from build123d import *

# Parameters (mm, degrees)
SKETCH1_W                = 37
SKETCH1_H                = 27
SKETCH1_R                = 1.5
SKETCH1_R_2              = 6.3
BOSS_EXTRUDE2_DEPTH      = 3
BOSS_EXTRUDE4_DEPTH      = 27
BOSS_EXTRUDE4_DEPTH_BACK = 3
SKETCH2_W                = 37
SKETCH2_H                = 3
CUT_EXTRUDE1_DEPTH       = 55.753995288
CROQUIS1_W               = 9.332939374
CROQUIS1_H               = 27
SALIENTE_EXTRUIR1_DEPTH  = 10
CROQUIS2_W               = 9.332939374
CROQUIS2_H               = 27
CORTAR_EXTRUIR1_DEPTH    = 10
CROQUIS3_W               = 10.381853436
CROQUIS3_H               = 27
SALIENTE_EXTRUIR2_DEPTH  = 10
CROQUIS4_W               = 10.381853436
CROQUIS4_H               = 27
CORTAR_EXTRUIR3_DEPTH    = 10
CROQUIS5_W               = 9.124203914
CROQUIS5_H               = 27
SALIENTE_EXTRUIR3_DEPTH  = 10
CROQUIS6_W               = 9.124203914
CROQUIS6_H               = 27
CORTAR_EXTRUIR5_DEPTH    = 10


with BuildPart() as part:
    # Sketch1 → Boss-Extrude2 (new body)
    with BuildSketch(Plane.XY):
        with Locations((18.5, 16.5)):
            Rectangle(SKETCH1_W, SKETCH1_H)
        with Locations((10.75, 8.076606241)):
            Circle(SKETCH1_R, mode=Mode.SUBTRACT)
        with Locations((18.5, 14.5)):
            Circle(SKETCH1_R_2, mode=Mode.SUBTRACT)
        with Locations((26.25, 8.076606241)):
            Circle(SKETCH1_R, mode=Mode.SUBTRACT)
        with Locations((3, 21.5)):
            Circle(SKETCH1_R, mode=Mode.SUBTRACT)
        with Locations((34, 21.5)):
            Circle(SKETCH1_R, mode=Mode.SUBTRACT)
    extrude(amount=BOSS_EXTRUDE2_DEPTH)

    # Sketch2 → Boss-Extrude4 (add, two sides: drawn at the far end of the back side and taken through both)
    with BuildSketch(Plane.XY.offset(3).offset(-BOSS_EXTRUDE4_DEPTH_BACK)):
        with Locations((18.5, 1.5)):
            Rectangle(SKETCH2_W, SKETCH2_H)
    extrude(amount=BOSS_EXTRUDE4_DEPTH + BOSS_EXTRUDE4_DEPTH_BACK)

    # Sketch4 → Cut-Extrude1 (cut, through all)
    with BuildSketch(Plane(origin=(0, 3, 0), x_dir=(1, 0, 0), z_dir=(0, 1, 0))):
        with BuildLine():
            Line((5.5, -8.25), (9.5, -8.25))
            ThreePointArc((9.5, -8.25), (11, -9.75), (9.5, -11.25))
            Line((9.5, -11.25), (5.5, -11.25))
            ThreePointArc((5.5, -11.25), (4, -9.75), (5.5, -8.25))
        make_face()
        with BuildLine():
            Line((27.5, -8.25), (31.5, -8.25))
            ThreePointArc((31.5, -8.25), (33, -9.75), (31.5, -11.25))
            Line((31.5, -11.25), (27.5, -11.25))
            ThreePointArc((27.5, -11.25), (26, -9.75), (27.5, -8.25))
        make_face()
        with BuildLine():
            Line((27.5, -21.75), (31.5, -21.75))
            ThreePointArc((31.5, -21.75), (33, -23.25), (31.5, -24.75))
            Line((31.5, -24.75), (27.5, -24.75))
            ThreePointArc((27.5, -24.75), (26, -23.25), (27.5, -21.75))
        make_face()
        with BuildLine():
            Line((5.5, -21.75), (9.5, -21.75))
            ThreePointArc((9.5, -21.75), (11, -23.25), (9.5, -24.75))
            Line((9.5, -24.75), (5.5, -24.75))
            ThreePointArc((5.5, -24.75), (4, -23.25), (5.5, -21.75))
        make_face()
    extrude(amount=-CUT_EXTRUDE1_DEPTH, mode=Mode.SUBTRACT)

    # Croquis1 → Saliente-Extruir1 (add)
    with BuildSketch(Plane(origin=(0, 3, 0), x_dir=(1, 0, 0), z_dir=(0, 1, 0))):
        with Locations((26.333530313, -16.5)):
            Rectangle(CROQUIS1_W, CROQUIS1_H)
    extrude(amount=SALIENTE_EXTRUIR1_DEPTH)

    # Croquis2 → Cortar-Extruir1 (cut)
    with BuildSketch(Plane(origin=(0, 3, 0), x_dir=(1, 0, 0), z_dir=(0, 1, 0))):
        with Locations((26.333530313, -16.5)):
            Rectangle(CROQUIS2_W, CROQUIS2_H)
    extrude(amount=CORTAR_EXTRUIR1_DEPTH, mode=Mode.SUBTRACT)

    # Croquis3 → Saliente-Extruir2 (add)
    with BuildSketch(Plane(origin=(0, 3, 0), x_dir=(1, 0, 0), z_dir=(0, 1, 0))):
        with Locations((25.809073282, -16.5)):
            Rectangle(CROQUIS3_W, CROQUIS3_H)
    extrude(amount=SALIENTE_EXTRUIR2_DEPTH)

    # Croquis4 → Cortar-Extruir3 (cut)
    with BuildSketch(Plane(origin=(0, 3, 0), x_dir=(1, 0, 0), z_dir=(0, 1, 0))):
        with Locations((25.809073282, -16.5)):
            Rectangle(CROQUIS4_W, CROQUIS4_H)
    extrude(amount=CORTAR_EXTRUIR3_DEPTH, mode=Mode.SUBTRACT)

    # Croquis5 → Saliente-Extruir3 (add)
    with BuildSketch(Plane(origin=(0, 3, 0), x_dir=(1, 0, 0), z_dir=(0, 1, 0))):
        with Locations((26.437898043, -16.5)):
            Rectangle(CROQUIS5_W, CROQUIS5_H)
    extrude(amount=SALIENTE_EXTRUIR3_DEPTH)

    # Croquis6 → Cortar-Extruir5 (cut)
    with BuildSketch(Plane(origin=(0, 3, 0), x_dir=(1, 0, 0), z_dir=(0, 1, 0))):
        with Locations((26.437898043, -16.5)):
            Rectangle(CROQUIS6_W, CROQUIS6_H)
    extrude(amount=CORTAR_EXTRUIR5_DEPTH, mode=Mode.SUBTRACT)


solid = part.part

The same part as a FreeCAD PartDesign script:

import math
import FreeCAD as App
import Part
import Sketcher

doc = App.newDocument("Part")
body = doc.addObject("PartDesign::Body", "Body")

sketch1 = body.newObject("Sketcher::SketchObject", "Sketch")
sketch1.AttachmentSupport = (doc.getObject("XY_Plane"), [""])
sketch1.MapMode = "FlatFace"
sketch1.addGeometry(Part.LineSegment(App.Vector(0, 30, 0), App.Vector(0, 3, 0)), False)
sketch1.addGeometry(Part.LineSegment(App.Vector(0, 3, 0), App.Vector(37, 3, 0)), False)
sketch1.addGeometry(Part.LineSegment(App.Vector(37, 3, 0), App.Vector(37, 30, 0)), False)
sketch1.addGeometry(Part.LineSegment(App.Vector(37, 30, 0), App.Vector(0, 30, 0)), False)
sketch1.addGeometry(Part.Circle(App.Vector(10.8, 8.1, 0), App.Vector(0, 0, 1), 1.5), False)
sketch1.addGeometry(Part.Circle(App.Vector(26.2, 8.1, 0), App.Vector(0, 0, 1), 1.5), False)
sketch1.addGeometry(Part.Circle(App.Vector(18.5, 14.5, 0), App.Vector(0, 0, 1), 6.3), False)
sketch1.addGeometry(Part.Circle(App.Vector(3, 21.5, 0), App.Vector(0, 0, 1), 1.5), False)
sketch1.addGeometry(Part.Circle(App.Vector(34, 21.5, 0), App.Vector(0, 0, 1), 1.5), False)
sketch1.addConstraint(Sketcher.Constraint("Coincident", 0, 2, 1, 1))
sketch1.addConstraint(Sketcher.Constraint("Coincident", 1, 2, 2, 1))
sketch1.addConstraint(Sketcher.Constraint("Coincident", 2, 2, 3, 1))
sketch1.addConstraint(Sketcher.Constraint("Coincident", 3, 2, 0, 1))
sketch1.addConstraint(Sketcher.Constraint("Vertical", 0))
sketch1.addConstraint(Sketcher.Constraint("Horizontal", 1))
sketch1.addConstraint(Sketcher.Constraint("Vertical", 2))
sketch1.addConstraint(Sketcher.Constraint("Horizontal", 3))
sketch1.addConstraint(Sketcher.Constraint("Equal", 4, 5))
sketch1.addConstraint(Sketcher.Constraint("Equal", 5, 7))
sketch1.addConstraint(Sketcher.Constraint("Equal", 7, 8))
sketch1.addConstraint(Sketcher.Constraint("PointOnObject", 0, 2, -2))
sketch1.addConstraint(Sketcher.Constraint("Horizontal", 4, 3, 5, 3))
sketch1.addConstraint(Sketcher.Constraint("Horizontal", 7, 3, 8, 3))
sketch1.addConstraint(Sketcher.Constraint("Diameter", 4, 3.0))
sketch1.addConstraint(Sketcher.Constraint("Diameter", 6, 12.6))
sketch1.addConstraint(Sketcher.Constraint("DistanceX", 1, 1, 1, 2, 37.0))
sketch1.addConstraint(Sketcher.Constraint("DistanceY", 0, 2, 0, 1, 27.0))
sketch1.addConstraint(Sketcher.Constraint("DistanceX", -1, 1, 7, 3, 3.0))
sketch1.addConstraint(Sketcher.Constraint("DistanceX", -1, 1, 8, 3, 34.0))
sketch1.addConstraint(Sketcher.Constraint("DistanceY", -1, 1, 0, 2, 3.0))
sketch1.addConstraint(Sketcher.Constraint("DistanceY", 6, 3, 7, 3, 7.0))
sketch1.addConstraint(Sketcher.Constraint("DistanceX", -1, 1, 6, 3, 18.5))
sketch1.addConstraint(Sketcher.Constraint("DistanceY", -1, 1, 6, 3, 14.5))
sketch1.addConstraint(Sketcher.Constraint("DistanceX", 4, 3, 5, 3, 15.5))
sketch1.addConstraint(Sketcher.Constraint("DistanceX", -1, 1, 4, 3, 10.75))
sketch1.addConstraint(Sketcher.Constraint("DistanceY", -1, 1, 4, 3, 8.076606))
pad1 = body.newObject("PartDesign::Pad", "Pad")
pad1.Profile = sketch1
pad1.Length = 3

sketch2 = body.newObject("Sketcher::SketchObject", "Sketch001")
sketch2.AttachmentSupport = (doc.getObject("XY_Plane"), [""])
sketch2.MapMode = "FlatFace"
sketch2.AttachmentOffset = App.Placement(App.Vector(0, 0, 3), App.Rotation())
sketch2.addGeometry(Part.LineSegment(App.Vector(0, 3, 0), App.Vector(0, 0, 0)), False)
sketch2.addGeometry(Part.LineSegment(App.Vector(0, 0, 0), App.Vector(37, 0, 0)), False)
sketch2.addGeometry(Part.LineSegment(App.Vector(37, 0, 0), App.Vector(37, 3, 0)), False)
sketch2.addGeometry(Part.LineSegment(App.Vector(37, 3, 0), App.Vector(0, 3, 0)), False)
sketch2.addConstraint(Sketcher.Constraint("Coincident", 0, 2, 1, 1))
sketch2.addConstraint(Sketcher.Constraint("Coincident", 1, 2, 2, 1))
sketch2.addConstraint(Sketcher.Constraint("Coincident", 2, 2, 3, 1))
sketch2.addConstraint(Sketcher.Constraint("Coincident", 3, 2, 0, 1))
sketch2.addConstraint(Sketcher.Constraint("Vertical", 0))
sketch2.addConstraint(Sketcher.Constraint("Horizontal", 1))
sketch2.addConstraint(Sketcher.Constraint("Vertical", 2))
sketch2.addConstraint(Sketcher.Constraint("Horizontal", 3))
sketch2.addConstraint(Sketcher.Constraint("Coincident", 0, 2, -1, 1))
sketch2.addConstraint(Sketcher.Constraint("DistanceX", 1, 1, 1, 2, 37.0))
sketch2.addConstraint(Sketcher.Constraint("DistanceY", 0, 2, 0, 1, 3.0))
pad2 = body.newObject("PartDesign::Pad", "Pad001")
pad2.Profile = sketch2
pad2.Type = "TwoLengths"
pad2.Length = 27
pad2.Length2 = 3

sketch3 = body.newObject("Sketcher::SketchObject", "Sketch002")
sketch3.AttachmentSupport = (doc.getObject("XZ_Plane"), [""])
sketch3.MapMode = "FlatFace"
sketch3.AttachmentOffset = App.Placement(App.Vector(0, 0, -3), App.Rotation())
sketch3.addGeometry(Part.LineSegment(App.Vector(9.5, 8.2, 0), App.Vector(5.5, 8.2, 0)), False)
sketch3.addGeometry(Part.ArcOfCircle(Part.Circle(App.Vector(5.5, 9.8, 0), App.Vector(0, 0, 1), 1.5), math.radians(90), math.radians(270)), False)
sketch3.addGeometry(Part.LineSegment(App.Vector(5.5, 11.2, 0), App.Vector(9.5, 11.2, 0)), False)
sketch3.addGeometry(Part.ArcOfCircle(Part.Circle(App.Vector(9.5, 9.8, 0), App.Vector(0, 0, 1), 1.5), math.radians(-90), math.radians(90)), False)
sketch3.addGeometry(Part.LineSegment(App.Vector(31.5, 8.2, 0), App.Vector(27.5, 8.2, 0)), False)
sketch3.addGeometry(Part.ArcOfCircle(Part.Circle(App.Vector(27.5, 9.8, 0), App.Vector(0, 0, 1), 1.5), math.radians(90), math.radians(270)), False)
sketch3.addGeometry(Part.LineSegment(App.Vector(27.5, 11.2, 0), App.Vector(31.5, 11.2, 0)), False)
sketch3.addGeometry(Part.ArcOfCircle(Part.Circle(App.Vector(31.5, 9.8, 0), App.Vector(0, 0, 1), 1.5), math.radians(-90), math.radians(90)), False)
sketch3.addGeometry(Part.LineSegment(App.Vector(31.5, 21.8, 0), App.Vector(27.5, 21.8, 0)), False)
sketch3.addGeometry(Part.ArcOfCircle(Part.Circle(App.Vector(27.5, 23.2, 0), App.Vector(0, 0, 1), 1.5), math.radians(90), math.radians(270)), False)
sketch3.addGeometry(Part.LineSegment(App.Vector(27.5, 24.8, 0), App.Vector(31.5, 24.8, 0)), False)
sketch3.addGeometry(Part.ArcOfCircle(Part.Circle(App.Vector(31.5, 23.2, 0), App.Vector(0, 0, 1), 1.5), math.radians(-90), math.radians(90)), False)
sketch3.addGeometry(Part.LineSegment(App.Vector(9.5, 21.8, 0), App.Vector(5.5, 21.8, 0)), False)
sketch3.addGeometry(Part.ArcOfCircle(Part.Circle(App.Vector(5.5, 23.2, 0), App.Vector(0, 0, 1), 1.5), math.radians(90), math.radians(270)), False)
sketch3.addGeometry(Part.LineSegment(App.Vector(5.5, 24.8, 0), App.Vector(9.5, 24.8, 0)), False)
sketch3.addGeometry(Part.ArcOfCircle(Part.Circle(App.Vector(9.5, 23.2, 0), App.Vector(0, 0, 1), 1.5), math.radians(-90), math.radians(90)), False)
sketch3.addConstraint(Sketcher.Constraint("Tangent", 0, 2, 1, 2))
sketch3.addConstraint(Sketcher.Constraint("Tangent", 1, 1, 2, 1))
sketch3.addConstraint(Sketcher.Constraint("Tangent", 2, 2, 3, 2))
sketch3.addConstraint(Sketcher.Constraint("Tangent", 3, 1, 0, 1))
sketch3.addConstraint(Sketcher.Constraint("Tangent", 4, 2, 5, 2))
sketch3.addConstraint(Sketcher.Constraint("Tangent", 5, 1, 6, 1))
sketch3.addConstraint(Sketcher.Constraint("Tangent", 6, 2, 7, 2))
sketch3.addConstraint(Sketcher.Constraint("Tangent", 7, 1, 4, 1))
sketch3.addConstraint(Sketcher.Constraint("Tangent", 8, 2, 9, 2))
sketch3.addConstraint(Sketcher.Constraint("Tangent", 9, 1, 10, 1))
sketch3.addConstraint(Sketcher.Constraint("Tangent", 10, 2, 11, 2))
sketch3.addConstraint(Sketcher.Constraint("Tangent", 11, 1, 8, 1))
sketch3.addConstraint(Sketcher.Constraint("Tangent", 12, 2, 13, 2))
sketch3.addConstraint(Sketcher.Constraint("Tangent", 13, 1, 14, 1))
sketch3.addConstraint(Sketcher.Constraint("Tangent", 14, 2, 15, 2))
sketch3.addConstraint(Sketcher.Constraint("Tangent", 15, 1, 12, 1))
sketch3.addConstraint(Sketcher.Constraint("Horizontal", 0))
sketch3.addConstraint(Sketcher.Constraint("Horizontal", 2))
sketch3.addConstraint(Sketcher.Constraint("Horizontal", 4))
sketch3.addConstraint(Sketcher.Constraint("Horizontal", 6))
sketch3.addConstraint(Sketcher.Constraint("Horizontal", 8))
sketch3.addConstraint(Sketcher.Constraint("Horizontal", 10))
sketch3.addConstraint(Sketcher.Constraint("Horizontal", 12))
sketch3.addConstraint(Sketcher.Constraint("Horizontal", 14))
sketch3.addConstraint(Sketcher.Constraint("Equal", 3, 5))
sketch3.addConstraint(Sketcher.Constraint("Equal", 7, 9))
sketch3.addConstraint(Sketcher.Constraint("Equal", 11, 13))
sketch3.addConstraint(Sketcher.Constraint("Horizontal", 3, 3, 5, 3))
sketch3.addConstraint(Sketcher.Constraint("Horizontal", 11, 3, 13, 3))
sketch3.addConstraint(Sketcher.Constraint("Vertical", 5, 3, 9, 3))
sketch3.addConstraint(Sketcher.Constraint("Vertical", 7, 3, 11, 3))
sketch3.addConstraint(Sketcher.Constraint("Vertical", 1, 3, 13, 3))
sketch3.addConstraint(Sketcher.Constraint("Vertical", 3, 3, 15, 3))
sketch3.addConstraint(Sketcher.Constraint("Equal", 2, 4))
sketch3.addConstraint(Sketcher.Constraint("Radius", 1, 1.5))
sketch3.addConstraint(Sketcher.Constraint("DistanceX", 0, 2, 0, 1, 4.0))
sketch3.addConstraint(Sketcher.Constraint("DistanceX", 3, 3, 5, 3, 18.0))
sketch3.addConstraint(Sketcher.Constraint("DistanceY", 0, 2, 13, 3, 15.0))
sketch3.addConstraint(Sketcher.Constraint("DistanceX", -1, 1, 1, 3, 5.5))
sketch3.addConstraint(Sketcher.Constraint("DistanceY", -1, 1, 1, 3, 9.75))
pocket1 = body.newObject("PartDesign::Pocket", "Pocket")
pocket1.Profile = sketch3
pocket1.Type = "ThroughAll"
pocket1.Reversed = True

sketch4 = body.newObject("Sketcher::SketchObject", "Sketch003")
sketch4.AttachmentSupport = (doc.getObject("XZ_Plane"), [""])
sketch4.MapMode = "FlatFace"
sketch4.AttachmentOffset = App.Placement(App.Vector(0, 0, -3), App.Rotation())
sketch4.addGeometry(Part.LineSegment(App.Vector(22, 3, 0), App.Vector(22, 30, 0)), False)
sketch4.addGeometry(Part.LineSegment(App.Vector(22, 30, 0), App.Vector(31, 30, 0)), False)
sketch4.addGeometry(Part.LineSegment(App.Vector(31, 30, 0), App.Vector(31, 3, 0)), False)
sketch4.addGeometry(Part.LineSegment(App.Vector(31, 3, 0), App.Vector(22, 3, 0)), False)
sketch4.addConstraint(Sketcher.Constraint("Coincident", 0, 2, 1, 1))
sketch4.addConstraint(Sketcher.Constraint("Coincident", 1, 2, 2, 1))
sketch4.addConstraint(Sketcher.Constraint("Coincident", 2, 2, 3, 1))
sketch4.addConstraint(Sketcher.Constraint("Coincident", 3, 2, 0, 1))
sketch4.addConstraint(Sketcher.Constraint("Vertical", 0))
sketch4.addConstraint(Sketcher.Constraint("Horizontal", 1))
sketch4.addConstraint(Sketcher.Constraint("Vertical", 2))
sketch4.addConstraint(Sketcher.Constraint("Horizontal", 3))
sketch4.addConstraint(Sketcher.Constraint("DistanceY", 0, 1, 0, 2, 27.0))
sketch4.addConstraint(Sketcher.Constraint("DistanceY", -1, 1, 0, 2, 30.0))
sketch4.addConstraint(Sketcher.Constraint("DistanceX", -1, 1, 1, 2, 31.0))
sketch4.addConstraint(Sketcher.Constraint("DistanceX", 1, 1, 1, 2, 9.332939))
pad3 = body.newObject("PartDesign::Pad", "Pad002")
pad3.Profile = sketch4
pad3.Length = 10
pad3.Reversed = True

sketch5 = body.newObject("Sketcher::SketchObject", "Sketch004")
sketch5.AttachmentSupport = (doc.getObject("XZ_Plane"), [""])
sketch5.MapMode = "FlatFace"
sketch5.AttachmentOffset = App.Placement(App.Vector(0, 0, -3), App.Rotation())
sketch5.addGeometry(Part.LineSegment(App.Vector(22, 3, 0), App.Vector(22, 30, 0)), False)
sketch5.addGeometry(Part.LineSegment(App.Vector(22, 30, 0), App.Vector(31, 30, 0)), False)
sketch5.addGeometry(Part.LineSegment(App.Vector(31, 30, 0), App.Vector(31, 3, 0)), False)
sketch5.addGeometry(Part.LineSegment(App.Vector(31, 3, 0), App.Vector(22, 3, 0)), False)
sketch5.addConstraint(Sketcher.Constraint("Coincident", 0, 2, 1, 1))
sketch5.addConstraint(Sketcher.Constraint("Coincident", 1, 2, 2, 1))
sketch5.addConstraint(Sketcher.Constraint("Coincident", 2, 2, 3, 1))
sketch5.addConstraint(Sketcher.Constraint("Coincident", 3, 2, 0, 1))
sketch5.addConstraint(Sketcher.Constraint("Vertical", 0))
sketch5.addConstraint(Sketcher.Constraint("Horizontal", 1))
sketch5.addConstraint(Sketcher.Constraint("Vertical", 2))
sketch5.addConstraint(Sketcher.Constraint("Horizontal", 3))
sketch5.addConstraint(Sketcher.Constraint("DistanceY", 0, 1, 0, 2, 27.0))
sketch5.addConstraint(Sketcher.Constraint("DistanceY", -1, 1, 0, 2, 30.0))
sketch5.addConstraint(Sketcher.Constraint("DistanceX", -1, 1, 1, 2, 31.0))
sketch5.addConstraint(Sketcher.Constraint("DistanceX", 1, 1, 1, 2, 9.332939))
pocket2 = body.newObject("PartDesign::Pocket", "Pocket001")
pocket2.Profile = sketch5
pocket2.Length = 10

sketch6 = body.newObject("Sketcher::SketchObject", "Sketch005")
sketch6.AttachmentSupport = (doc.getObject("XZ_Plane"), [""])
sketch6.MapMode = "FlatFace"
sketch6.AttachmentOffset = App.Placement(App.Vector(0, 0, -3), App.Rotation())
sketch6.addGeometry(Part.LineSegment(App.Vector(21, 3, 0), App.Vector(21, 30, 0)), False)
sketch6.addGeometry(Part.LineSegment(App.Vector(21, 30, 0), App.Vector(31, 30, 0)), False)
sketch6.addGeometry(Part.LineSegment(App.Vector(31, 30, 0), App.Vector(31, 3, 0)), False)
sketch6.addGeometry(Part.LineSegment(App.Vector(31, 3, 0), App.Vector(21, 3, 0)), False)
sketch6.addConstraint(Sketcher.Constraint("Coincident", 0, 2, 1, 1))
sketch6.addConstraint(Sketcher.Constraint("Coincident", 1, 2, 2, 1))
sketch6.addConstraint(Sketcher.Constraint("Coincident", 2, 2, 3, 1))
sketch6.addConstraint(Sketcher.Constraint("Coincident", 3, 2, 0, 1))
sketch6.addConstraint(Sketcher.Constraint("Vertical", 0))
sketch6.addConstraint(Sketcher.Constraint("Horizontal", 1))
sketch6.addConstraint(Sketcher.Constraint("Vertical", 2))
sketch6.addConstraint(Sketcher.Constraint("Horizontal", 3))
sketch6.addConstraint(Sketcher.Constraint("DistanceY", 0, 1, 0, 2, 27.0))
sketch6.addConstraint(Sketcher.Constraint("DistanceY", -1, 1, 0, 2, 30.0))
sketch6.addConstraint(Sketcher.Constraint("DistanceX", -1, 1, 1, 2, 31.0))
sketch6.addConstraint(Sketcher.Constraint("DistanceX", 1, 1, 1, 2, 10.381853))
pad4 = body.newObject("PartDesign::Pad", "Pad003")
pad4.Profile = sketch6
pad4.Length = 10
pad4.Reversed = True

sketch7 = body.newObject("Sketcher::SketchObject", "Sketch006")
sketch7.AttachmentSupport = (doc.getObject("XZ_Plane"), [""])
sketch7.MapMode = "FlatFace"
sketch7.AttachmentOffset = App.Placement(App.Vector(0, 0, -3), App.Rotation())
sketch7.addGeometry(Part.LineSegment(App.Vector(21, 3, 0), App.Vector(21, 30, 0)), False)
sketch7.addGeometry(Part.LineSegment(App.Vector(21, 30, 0), App.Vector(31, 30, 0)), False)
sketch7.addGeometry(Part.LineSegment(App.Vector(31, 30, 0), App.Vector(31, 3, 0)), False)
sketch7.addGeometry(Part.LineSegment(App.Vector(31, 3, 0), App.Vector(21, 3, 0)), False)
sketch7.addConstraint(Sketcher.Constraint("Coincident", 0, 2, 1, 1))
sketch7.addConstraint(Sketcher.Constraint("Coincident", 1, 2, 2, 1))
sketch7.addConstraint(Sketcher.Constraint("Coincident", 2, 2, 3, 1))
sketch7.addConstraint(Sketcher.Constraint("Coincident", 3, 2, 0, 1))
sketch7.addConstraint(Sketcher.Constraint("Vertical", 0))
sketch7.addConstraint(Sketcher.Constraint("Horizontal", 1))
sketch7.addConstraint(Sketcher.Constraint("Vertical", 2))
sketch7.addConstraint(Sketcher.Constraint("Horizontal", 3))
sketch7.addConstraint(Sketcher.Constraint("DistanceY", 0, 1, 0, 2, 27.0))
sketch7.addConstraint(Sketcher.Constraint("DistanceY", -1, 1, 0, 2, 30.0))
sketch7.addConstraint(Sketcher.Constraint("DistanceX", -1, 1, 1, 2, 31.0))
sketch7.addConstraint(Sketcher.Constraint("DistanceX", 1, 1, 1, 2, 10.381853))
pocket3 = body.newObject("PartDesign::Pocket", "Pocket002")
pocket3.Profile = sketch7
pocket3.Length = 10

sketch8 = body.newObject("Sketcher::SketchObject", "Sketch007")
sketch8.AttachmentSupport = (doc.getObject("XZ_Plane"), [""])
sketch8.MapMode = "FlatFace"
sketch8.AttachmentOffset = App.Placement(App.Vector(0, 0, -3), App.Rotation())
sketch8.addGeometry(Part.LineSegment(App.Vector(22, 3, 0), App.Vector(22, 30, 0)), False)
sketch8.addGeometry(Part.LineSegment(App.Vector(22, 30, 0), App.Vector(31, 30, 0)), False)
sketch8.addGeometry(Part.LineSegment(App.Vector(31, 30, 0), App.Vector(31, 3, 0)), False)
sketch8.addGeometry(Part.LineSegment(App.Vector(31, 3, 0), App.Vector(22, 3, 0)), False)
sketch8.addConstraint(Sketcher.Constraint("Coincident", 0, 2, 1, 1))
sketch8.addConstraint(Sketcher.Constraint("Coincident", 1, 2, 2, 1))
sketch8.addConstraint(Sketcher.Constraint("Coincident", 2, 2, 3, 1))
sketch8.addConstraint(Sketcher.Constraint("Coincident", 3, 2, 0, 1))
sketch8.addConstraint(Sketcher.Constraint("Vertical", 0))
sketch8.addConstraint(Sketcher.Constraint("Horizontal", 1))
sketch8.addConstraint(Sketcher.Constraint("Vertical", 2))
sketch8.addConstraint(Sketcher.Constraint("Horizontal", 3))
sketch8.addConstraint(Sketcher.Constraint("DistanceY", 0, 1, 0, 2, 27.0))
sketch8.addConstraint(Sketcher.Constraint("DistanceY", -1, 1, 0, 2, 30.0))
sketch8.addConstraint(Sketcher.Constraint("DistanceX", -1, 1, 1, 2, 31.0))
sketch8.addConstraint(Sketcher.Constraint("DistanceX", 1, 1, 1, 2, 9.124204))
pad5 = body.newObject("PartDesign::Pad", "Pad004")
pad5.Profile = sketch8
pad5.Length = 10
pad5.Reversed = True

sketch9 = body.newObject("Sketcher::SketchObject", "Sketch008")
sketch9.AttachmentSupport = (doc.getObject("XZ_Plane"), [""])
sketch9.MapMode = "FlatFace"
sketch9.AttachmentOffset = App.Placement(App.Vector(0, 0, -3), App.Rotation())
sketch9.addGeometry(Part.LineSegment(App.Vector(22, 3, 0), App.Vector(22, 30, 0)), False)
sketch9.addGeometry(Part.LineSegment(App.Vector(22, 30, 0), App.Vector(31, 30, 0)), False)
sketch9.addGeometry(Part.LineSegment(App.Vector(31, 30, 0), App.Vector(31, 3, 0)), False)
sketch9.addGeometry(Part.LineSegment(App.Vector(31, 3, 0), App.Vector(22, 3, 0)), False)
sketch9.addConstraint(Sketcher.Constraint("Coincident", 0, 2, 1, 1))
sketch9.addConstraint(Sketcher.Constraint("Coincident", 1, 2, 2, 1))
sketch9.addConstraint(Sketcher.Constraint("Coincident", 2, 2, 3, 1))
sketch9.addConstraint(Sketcher.Constraint("Coincident", 3, 2, 0, 1))
sketch9.addConstraint(Sketcher.Constraint("Vertical", 0))
sketch9.addConstraint(Sketcher.Constraint("Horizontal", 1))
sketch9.addConstraint(Sketcher.Constraint("Vertical", 2))
sketch9.addConstraint(Sketcher.Constraint("Horizontal", 3))
sketch9.addConstraint(Sketcher.Constraint("DistanceY", 0, 1, 0, 2, 27.0))
sketch9.addConstraint(Sketcher.Constraint("DistanceY", -1, 1, 0, 2, 30.0))
sketch9.addConstraint(Sketcher.Constraint("DistanceX", -1, 1, 1, 2, 31.0))
sketch9.addConstraint(Sketcher.Constraint("DistanceX", 1, 1, 1, 2, 9.124204))
pocket4 = body.newObject("PartDesign::Pocket", "Pocket003")
pocket4.Profile = sketch9
pocket4.Length = 10

doc.recompute()
